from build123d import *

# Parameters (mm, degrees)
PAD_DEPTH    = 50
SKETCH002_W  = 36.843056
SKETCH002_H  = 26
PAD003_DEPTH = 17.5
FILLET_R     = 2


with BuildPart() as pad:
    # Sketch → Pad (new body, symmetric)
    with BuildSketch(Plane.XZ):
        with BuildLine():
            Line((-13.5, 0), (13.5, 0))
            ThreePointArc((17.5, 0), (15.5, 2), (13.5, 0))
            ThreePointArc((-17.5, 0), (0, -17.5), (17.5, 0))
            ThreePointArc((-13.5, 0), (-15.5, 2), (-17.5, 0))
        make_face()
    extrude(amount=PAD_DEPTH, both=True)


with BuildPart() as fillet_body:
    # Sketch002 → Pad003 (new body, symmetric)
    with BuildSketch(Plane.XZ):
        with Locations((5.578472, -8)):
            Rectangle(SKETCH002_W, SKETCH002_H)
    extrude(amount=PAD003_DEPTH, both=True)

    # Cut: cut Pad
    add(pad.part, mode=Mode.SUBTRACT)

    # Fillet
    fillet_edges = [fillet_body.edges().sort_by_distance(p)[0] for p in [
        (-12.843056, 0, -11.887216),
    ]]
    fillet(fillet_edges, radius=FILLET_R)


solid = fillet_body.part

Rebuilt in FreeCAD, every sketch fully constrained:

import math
import FreeCAD as App
import Part
import Sketcher
from FreeCAD import Vector


def edges_at(feature, points):
    """Names of the edges that pass closest to the given points."""
    edges = feature.Shape.Edges
    near = lambda p: min(range(len(edges)), key=lambda i: edges[i].distToShape(Part.Vertex(*p))[0])
    return sorted({f"Edge{near(p) + 1}" for p in points})

doc = App.newDocument("Part")
body = doc.addObject("PartDesign::Body", "Body")

sketch1 = doc.addObject("Sketcher::SketchObject", "Sketch")
body.addObject(sketch1)
sketch1.AttachmentSupport = (doc.XZ_Plane, [""])
sketch1.MapMode = "FlatFace"
sketch1.addGeometry(Part.LineSegment(Vector(13.5, 0, 0), Vector(-13.5, 0, 0)), False)
sketch1.addGeometry(Part.ArcOfCircle(Part.Circle(Vector(-15.5, 0, 0), Vector(0, 0, 1), 2), math.radians(0), math.radians(180)), False)
sketch1.addGeometry(Part.ArcOfCircle(Part.Circle(Vector(0, 0, 0), Vector(0, 0, 1), 17.5), math.radians(180), math.radians(360)), False)
sketch1.addGeometry(Part.ArcOfCircle(Part.Circle(Vector(15.5, 0, 0), Vector(0, 0, 1), 2), math.radians(0), math.radians(180)), False)
sketch1.addConstraint(Sketcher.Constraint("Coincident", 0, 2, 1, 1))
sketch1.addConstraint(Sketcher.Constraint("Tangent", 1, 2, 2, 1))
sketch1.addConstraint(Sketcher.Constraint("Tangent", 2, 2, 3, 1))
sketch1.addConstraint(Sketcher.Constraint("Coincident", 3, 2, 0, 1))
sketch1.addConstraint(Sketcher.Constraint("Horizontal", 0))
sketch1.addConstraint(Sketcher.Constraint("Coincident", 2, 3, -1, 1))
sketch1.addConstraint(Sketcher.Constraint("Equal", 1, 3))
sketch1.addConstraint(Sketcher.Constraint("PointOnObject", 1, 3, -1))
sketch1.addConstraint(Sketcher.Constraint("PointOnObject", 3, 3, -1))
sketch1.addConstraint(Sketcher.Constraint("PointOnObject", 0, 2, -1))
sketch1.addConstraint(Sketcher.Constraint("Radius", 1, 2.0))
sketch1.addConstraint(Sketcher.Constraint("Radius", 2, 17.5))
pad1 = doc.addObject("PartDesign::Pad", "Pad")
body.addObject(pad1)
pad1.Profile = sketch1
pad1.Length = 100
pad1.Midplane = True
body2 = doc.addObject("PartDesign::Body", "Body001")

sketch2 = doc.addObject("Sketcher::SketchObject", "Sketch001")
body2.addObject(sketch2)
sketch2.AttachmentSupport = (doc.getObject("XZ_Plane001"), [""])
sketch2.MapMode = "FlatFace"
sketch2.addGeometry(Part.LineSegment(Vector(-13, 5, 0), Vector(-13, -21, 0)), False)
sketch2.addGeometry(Part.LineSegment(Vector(-13, -21, 0), Vector(24, -21, 0)), False)
sketch2.addGeometry(Part.LineSegment(Vector(24, -21, 0), Vector(24, 5, 0)), False)
sketch2.addGeometry(Part.LineSegment(Vector(24, 5, 0), Vector(-13, 5, 0)), False)
sketch2.addConstraint(Sketcher.Constraint("Coincident", 0, 2, 1, 1))
sketch2.addConstraint(Sketcher.Constraint("Coincident", 1, 2, 2, 1))
sketch2.addConstraint(Sketcher.Constraint("Coincident", 2, 2, 3, 1))
sketch2.addConstraint(Sketcher.Constraint("Coincident", 3, 2, 0, 1))
sketch2.addConstraint(Sketcher.Constraint("Vertical", 0))
sketch2.addConstraint(Sketcher.Constraint("Horizontal", 1))
sketch2.addConstraint(Sketcher.Constraint("Vertical", 2))
sketch2.addConstraint(Sketcher.Constraint("Horizontal", 3))
sketch2.addConstraint(Sketcher.Constraint("DistanceY", 0, 2, 0, 1, 26.0))
sketch2.addConstraint(Sketcher.Constraint("DistanceY", 0, 2, -1, 1, 21.0))
sketch2.addConstraint(Sketcher.Constraint("DistanceX", -1, 1, 1, 2, 24.0))
sketch2.addConstraint(Sketcher.Constraint("DistanceX", 1, 1, 1, 2, 36.843056))
pad2 = doc.addObject("PartDesign::Pad", "Pad001")
body2.addObject(pad2)
pad2.Profile = sketch2
pad2.Length = 35
pad2.Midplane = True
doc.recompute()

boolean = doc.addObject("PartDesign::Boolean", "Boolean")
body2.addObject(boolean)
boolean.Type = "Cut"
boolean.addObjects([body])
doc.recompute()

fillet = doc.addObject("PartDesign::Fillet", "Fillet")
body2.addObject(fillet)
fillet.Base = (boolean, edges_at(boolean, [(-12.843, 0, -11.887)]))
fillet.Radius = 2

doc.recompute()
